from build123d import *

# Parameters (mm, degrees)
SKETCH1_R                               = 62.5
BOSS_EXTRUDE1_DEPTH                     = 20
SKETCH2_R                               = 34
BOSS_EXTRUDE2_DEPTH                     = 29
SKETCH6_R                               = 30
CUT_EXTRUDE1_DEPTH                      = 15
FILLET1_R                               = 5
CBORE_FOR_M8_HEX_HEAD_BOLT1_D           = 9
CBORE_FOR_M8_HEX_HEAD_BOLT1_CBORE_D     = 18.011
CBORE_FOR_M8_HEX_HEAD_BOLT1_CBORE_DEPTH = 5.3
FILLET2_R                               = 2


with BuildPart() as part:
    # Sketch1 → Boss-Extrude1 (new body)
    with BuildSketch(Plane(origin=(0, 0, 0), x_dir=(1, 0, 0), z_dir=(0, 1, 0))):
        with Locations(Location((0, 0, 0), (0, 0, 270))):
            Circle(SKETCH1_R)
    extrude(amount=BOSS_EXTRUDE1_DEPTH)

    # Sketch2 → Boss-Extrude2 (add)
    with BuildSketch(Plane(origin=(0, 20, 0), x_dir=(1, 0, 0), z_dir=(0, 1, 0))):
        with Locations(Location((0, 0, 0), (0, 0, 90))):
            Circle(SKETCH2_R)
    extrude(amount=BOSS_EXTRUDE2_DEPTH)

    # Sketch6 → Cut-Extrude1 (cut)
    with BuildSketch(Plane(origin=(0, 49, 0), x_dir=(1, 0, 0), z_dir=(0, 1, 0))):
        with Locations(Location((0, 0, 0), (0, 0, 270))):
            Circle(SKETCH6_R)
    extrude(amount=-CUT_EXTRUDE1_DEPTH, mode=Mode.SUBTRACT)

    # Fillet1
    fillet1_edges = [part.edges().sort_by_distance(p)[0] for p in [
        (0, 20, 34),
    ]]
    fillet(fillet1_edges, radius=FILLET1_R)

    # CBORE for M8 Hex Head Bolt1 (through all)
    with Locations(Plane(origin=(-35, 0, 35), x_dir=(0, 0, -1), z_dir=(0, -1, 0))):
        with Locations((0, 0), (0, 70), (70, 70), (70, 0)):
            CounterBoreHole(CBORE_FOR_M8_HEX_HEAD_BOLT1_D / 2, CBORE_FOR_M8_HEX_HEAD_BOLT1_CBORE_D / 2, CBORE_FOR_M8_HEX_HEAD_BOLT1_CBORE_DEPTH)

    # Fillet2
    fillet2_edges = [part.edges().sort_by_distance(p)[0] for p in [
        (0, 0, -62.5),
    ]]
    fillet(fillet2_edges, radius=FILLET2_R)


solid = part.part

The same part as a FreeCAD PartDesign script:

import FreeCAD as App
import Part
import Sketcher


def edges_at(feature, points):
    """Names of the edges that pass closest to the given points."""
    edges = feature.Shape.Edges
    near = lambda p: min(range(len(edges)), key=lambda i: edges[i].distToShape(Part.Vertex(*p))[0])
    return sorted({f"Edge{near(p) + 1}" for p in points})

doc = App.newDocument("Part")
body = doc.addObject("PartDesign::Body", "Body")

sketch1 = body.newObject("Sketcher::SketchObject", "Sketch")
sketch1.AttachmentSupport = (doc.getObject("XZ_Plane"), [""])
sketch1.MapMode = "FlatFace"
sketch1.addGeometry(Part.Circle(App.Vector(0, 0, 0), App.Vector(0, 0, 1), 62.5), False)
sketch1.addConstraint(Sketcher.Constraint("Coincident", 0, 3, -1, 1))
sketch1.addConstraint(Sketcher.Constraint("Diameter", 0, 125.0))
pad1 = body.newObject("PartDesign::Pad", "Pad")
pad1.Profile = sketch1
pad1.Length = 20
pad1.Reversed = True

sketch2 = body.newObject("Sketcher::SketchObject", "Sketch001")
sketch2.AttachmentSupport = (doc.getObject("XZ_Plane"), [""])
sketch2.MapMode = "FlatFace"
sketch2.AttachmentOffset = App.Placement(App.Vector(0, 0, -20), App.Rotation())
sketch2.addGeometry(Part.Circle(App.Vector(0, 0, 0), App.Vector(0, 0, 1), 34), False)
sketch2.addConstraint(Sketcher.Constraint("Coincident", 0, 3, -1, 1))
sketch2.addConstraint(Sketcher.Constraint("Diameter", 0, 68.0))
pad2 = body.newObject("PartDesign::Pad", "Pad001")
pad2.Profile = sketch2
pad2.Length = 29
pad2.Reversed = True

sketch3 = body.newObject("Sketcher::SketchObject", "Sketch002")
sketch3.AttachmentSupport = (doc.getObject("XZ_Plane"), [""])
sketch3.MapMode = "FlatFace"
sketch3.AttachmentOffset = App.Placement(App.Vector(0, 0, -49), App.Rotation())
sketch3.addGeometry(Part.Circle(App.Vector(0, 0, 0), App.Vector(0, 0, 1), 30), False)
sketch3.addConstraint(Sketcher.Constraint("Coincident", 0, 3, -1, 1))
sketch3.addConstraint(Sketcher.Constraint("Diameter", 0, 60.0))
pocket1 = body.newObject("PartDesign::Pocket", "Pocket")
pocket1.Profile = sketch3
pocket1.Length = 15
pocket1.Reversed = True
doc.recompute()

fillet = body.newObject("PartDesign::Fillet", "Fillet")
fillet.Base = (pocket1, edges_at(pocket1, [(0, 20, 34)]))
fillet.Radius = 5

sketch4 = body.newObject("Sketcher::SketchObject", "Sketch003")
sketch4.AttachmentSupport = (doc.getObject("XZ_Plane"), [""])
sketch4.MapMode = "FlatFace"
sketch4.addGeometry(Part.Circle(App.Vector(-35, 35, 0), App.Vector(0, 0, 1), 4.5), False)
sketch4.addGeometry(Part.Circle(App.Vector(35, 35, 0), App.Vector(0, 0, 1), 4.5), False)
sketch4.addGeometry(Part.Circle(App.Vector(35, -35, 0), App.Vector(0, 0, 1), 4.5), False)
sketch4.addGeometry(Part.Circle(App.Vector(-35, -35, 0), App.Vector(0, 0, 1), 4.5), False)
sketch4.addConstraint(Sketcher.Constraint("Equal", 0, 1))
sketch4.addConstraint(Sketcher.Constraint("Equal", 1, 2))
sketch4.addConstraint(Sketcher.Constraint("Equal", 2, 3))
sketch4.addConstraint(Sketcher.Constraint("Symmetric", 0, 3, 2, 3, -1, 1))
sketch4.addConstraint(Sketcher.Constraint("Symmetric", 1, 3, 3, 3, -1, 1))
sketch4.addConstraint(Sketcher.Constraint("Symmetric", 0, 3, 1, 3, -2))
sketch4.addConstraint(Sketcher.Constraint("Diameter", 0, 9.0))
sketch4.addConstraint(Sketcher.Constraint("DistanceX", 0, 3, -1, 1, 35.0))
sketch4.addConstraint(Sketcher.Constraint("DistanceY", -1, 1, 0, 3, 35.0))
doc.recompute()
hole = body.newObject("PartDesign::Hole", "Hole")
hole.Profile = sketch4
hole.ThreadType = "None"
hole.Diameter = 9
hole.DepthType = "ThroughAll"
hole.HoleCutType = "Counterbore"
hole.HoleCutDiameter = 18.011
hole.HoleCutDepth = 5.3
doc.recompute()

fillet2 = body.newObject("PartDesign::Fillet", "Fillet001")
fillet2.Base = (hole, edges_at(hole, [(0, 0, -62.5)]))
fillet2.Radius = 2

doc.recompute()
